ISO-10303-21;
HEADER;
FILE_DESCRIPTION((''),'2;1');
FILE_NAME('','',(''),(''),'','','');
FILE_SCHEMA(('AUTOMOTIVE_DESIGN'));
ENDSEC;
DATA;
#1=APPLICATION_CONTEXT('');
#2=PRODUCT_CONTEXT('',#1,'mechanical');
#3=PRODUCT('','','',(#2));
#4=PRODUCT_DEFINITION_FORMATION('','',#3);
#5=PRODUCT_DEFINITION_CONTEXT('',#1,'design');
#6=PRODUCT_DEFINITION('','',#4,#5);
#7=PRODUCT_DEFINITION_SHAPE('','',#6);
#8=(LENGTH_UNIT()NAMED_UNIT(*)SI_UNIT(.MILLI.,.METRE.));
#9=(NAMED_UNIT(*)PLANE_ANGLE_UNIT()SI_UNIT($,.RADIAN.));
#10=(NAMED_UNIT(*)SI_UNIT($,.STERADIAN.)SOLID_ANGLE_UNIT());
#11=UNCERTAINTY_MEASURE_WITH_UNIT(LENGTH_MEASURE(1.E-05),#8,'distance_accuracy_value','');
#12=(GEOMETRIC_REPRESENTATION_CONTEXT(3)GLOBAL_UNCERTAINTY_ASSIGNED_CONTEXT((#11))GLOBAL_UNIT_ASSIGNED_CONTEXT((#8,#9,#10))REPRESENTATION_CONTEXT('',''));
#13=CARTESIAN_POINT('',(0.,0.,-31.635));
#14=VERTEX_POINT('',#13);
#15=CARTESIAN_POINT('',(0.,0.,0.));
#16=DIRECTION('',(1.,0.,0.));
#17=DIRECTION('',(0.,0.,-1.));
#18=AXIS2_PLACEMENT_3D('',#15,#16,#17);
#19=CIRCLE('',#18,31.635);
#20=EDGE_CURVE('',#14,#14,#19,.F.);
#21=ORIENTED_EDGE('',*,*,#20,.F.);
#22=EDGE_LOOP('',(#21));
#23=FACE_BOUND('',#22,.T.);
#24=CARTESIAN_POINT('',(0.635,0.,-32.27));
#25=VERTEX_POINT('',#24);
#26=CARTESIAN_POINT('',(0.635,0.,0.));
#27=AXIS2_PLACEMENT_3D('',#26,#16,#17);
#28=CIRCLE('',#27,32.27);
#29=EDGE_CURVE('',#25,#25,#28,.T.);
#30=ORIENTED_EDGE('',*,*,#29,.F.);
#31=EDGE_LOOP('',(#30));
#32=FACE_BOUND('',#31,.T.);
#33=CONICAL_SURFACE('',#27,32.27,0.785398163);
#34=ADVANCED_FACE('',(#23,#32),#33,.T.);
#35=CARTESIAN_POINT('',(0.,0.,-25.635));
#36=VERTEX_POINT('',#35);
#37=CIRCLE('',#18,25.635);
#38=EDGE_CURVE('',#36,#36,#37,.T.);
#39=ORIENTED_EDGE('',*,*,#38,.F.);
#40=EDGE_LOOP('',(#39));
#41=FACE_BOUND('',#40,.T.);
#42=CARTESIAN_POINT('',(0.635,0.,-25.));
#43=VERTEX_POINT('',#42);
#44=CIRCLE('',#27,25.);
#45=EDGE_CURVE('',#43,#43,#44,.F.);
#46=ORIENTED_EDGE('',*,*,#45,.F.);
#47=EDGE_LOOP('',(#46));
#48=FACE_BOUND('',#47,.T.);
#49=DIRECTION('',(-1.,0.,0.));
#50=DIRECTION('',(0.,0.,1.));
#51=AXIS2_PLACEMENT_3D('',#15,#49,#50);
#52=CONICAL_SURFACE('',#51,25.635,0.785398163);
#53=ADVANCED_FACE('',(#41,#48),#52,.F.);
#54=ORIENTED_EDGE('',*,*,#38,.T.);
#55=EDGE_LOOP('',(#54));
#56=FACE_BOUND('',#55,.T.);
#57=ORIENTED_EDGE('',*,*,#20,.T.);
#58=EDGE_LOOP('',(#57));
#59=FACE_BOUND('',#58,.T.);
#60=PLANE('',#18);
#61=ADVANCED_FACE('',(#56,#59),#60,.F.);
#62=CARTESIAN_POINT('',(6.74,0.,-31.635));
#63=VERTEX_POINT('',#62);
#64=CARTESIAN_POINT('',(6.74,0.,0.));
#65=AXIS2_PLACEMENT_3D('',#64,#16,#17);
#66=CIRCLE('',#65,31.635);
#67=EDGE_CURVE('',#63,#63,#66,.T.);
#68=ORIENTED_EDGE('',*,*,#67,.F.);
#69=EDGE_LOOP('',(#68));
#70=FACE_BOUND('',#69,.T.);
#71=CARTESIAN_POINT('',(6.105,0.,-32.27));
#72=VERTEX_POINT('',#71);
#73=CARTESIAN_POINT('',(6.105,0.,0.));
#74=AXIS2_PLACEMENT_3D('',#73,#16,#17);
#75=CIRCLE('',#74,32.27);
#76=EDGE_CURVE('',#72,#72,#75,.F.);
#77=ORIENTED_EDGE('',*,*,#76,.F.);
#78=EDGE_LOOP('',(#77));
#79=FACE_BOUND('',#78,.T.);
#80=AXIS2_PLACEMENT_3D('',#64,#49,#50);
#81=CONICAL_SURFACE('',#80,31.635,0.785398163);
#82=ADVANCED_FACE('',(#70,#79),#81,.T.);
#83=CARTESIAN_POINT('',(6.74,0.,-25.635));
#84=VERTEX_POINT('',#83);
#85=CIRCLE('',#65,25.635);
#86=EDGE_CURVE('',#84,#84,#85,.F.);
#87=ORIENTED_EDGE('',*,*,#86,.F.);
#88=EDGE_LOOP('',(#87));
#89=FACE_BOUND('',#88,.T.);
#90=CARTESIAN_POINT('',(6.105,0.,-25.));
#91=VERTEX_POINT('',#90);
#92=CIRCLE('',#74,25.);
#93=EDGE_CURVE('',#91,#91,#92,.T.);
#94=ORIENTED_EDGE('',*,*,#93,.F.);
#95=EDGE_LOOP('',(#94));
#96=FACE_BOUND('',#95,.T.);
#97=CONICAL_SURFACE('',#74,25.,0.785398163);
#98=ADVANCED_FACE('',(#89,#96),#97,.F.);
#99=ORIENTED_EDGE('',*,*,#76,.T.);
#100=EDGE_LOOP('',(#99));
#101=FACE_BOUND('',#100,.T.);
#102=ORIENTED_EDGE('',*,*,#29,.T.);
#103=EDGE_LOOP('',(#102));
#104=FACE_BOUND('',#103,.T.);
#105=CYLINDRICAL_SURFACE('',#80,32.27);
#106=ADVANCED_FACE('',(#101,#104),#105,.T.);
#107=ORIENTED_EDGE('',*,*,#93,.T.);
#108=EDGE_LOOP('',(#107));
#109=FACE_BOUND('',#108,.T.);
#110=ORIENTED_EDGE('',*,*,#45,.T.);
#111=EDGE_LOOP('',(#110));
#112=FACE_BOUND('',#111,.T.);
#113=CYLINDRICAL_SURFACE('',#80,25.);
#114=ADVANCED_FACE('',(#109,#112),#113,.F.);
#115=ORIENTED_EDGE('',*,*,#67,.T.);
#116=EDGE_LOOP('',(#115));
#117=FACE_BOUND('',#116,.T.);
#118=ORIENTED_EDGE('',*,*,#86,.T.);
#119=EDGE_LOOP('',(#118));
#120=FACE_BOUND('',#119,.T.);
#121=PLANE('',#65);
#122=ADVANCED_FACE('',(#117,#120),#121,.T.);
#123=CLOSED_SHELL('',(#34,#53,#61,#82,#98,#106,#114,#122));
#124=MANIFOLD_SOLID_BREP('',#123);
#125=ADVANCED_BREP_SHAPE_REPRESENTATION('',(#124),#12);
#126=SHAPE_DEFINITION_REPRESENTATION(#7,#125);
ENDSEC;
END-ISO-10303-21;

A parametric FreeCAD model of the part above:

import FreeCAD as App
import Part
import Sketcher

V = App.Vector


def edges_at(feature, points):
    """Names of the edges that pass closest to the given points."""
    edges = feature.Shape.Edges
    near = lambda p: min(range(len(edges)), key=lambda i: edges[i].distToShape(Part.Vertex(*p))[0])
    return sorted({f"Edge{near(p) + 1}" for p in points})

doc = App.newDocument("Part")
params = doc.addObject("Spreadsheet::Sheet", "Params")
for row, (alias, value) in enumerate([
    ("sketch1_diameter", "50 mm"),
    ("sketch1_diameter2", "64.54 mm"),
    ("pad1_length", "6.74 mm"),
    ("chamfer_size", "0.635 mm"),
    ("chamfer2_size", "0.635 mm"),
], start=1):
    params.set(f"A{row}", alias)
    params.set(f"B{row}", "=" + value)
    params.setAlias(f"B{row}", alias)

body = doc.addObject("PartDesign::Body", "Body")

sketch1 = body.newObject("Sketcher::SketchObject", "Sketch")
sketch1.AttachmentSupport = (doc.getObject("YZ_Plane"), [""])
sketch1.MapMode = "FlatFace"
sketch1.addGeometry([
    Part.Circle(V(0, 0, 0), V(0, 0, 1), 32),
    Part.Circle(V(0, 0, 0), V(0, 0, 1), 25),
], False)
sketch1.addConstraint([
    Sketcher.Constraint("Coincident", 0, 3, -1, 1),
    Sketcher.Constraint("Coincident", 1, 3, -1, 1),
    Sketcher.Constraint("Diameter", 1, 50.0),
    Sketcher.Constraint("Diameter", 0, 64.54),
])
sketch1.setExpression("Constraints[2]", "Params.sketch1_diameter")
sketch1.setExpression("Constraints[3]", "Params.sketch1_diameter2")
pad1 = body.newObject("PartDesign::Pad", "Pad")
pad1.Profile = sketch1
pad1.setExpression("Length", "Params.pad1_length")
doc.recompute()

chamfer = body.newObject("PartDesign::Chamfer", "Chamfer")
chamfer.Base = (pad1, edges_at(pad1, [(0, 0, 32.27), (6.74, 0, 32.27)]))
chamfer.setExpression("Size", "Params.chamfer_size")
doc.recompute()

chamfer2 = body.newObject("PartDesign::Chamfer", "Chamfer001")
chamfer2.Base = (chamfer, edges_at(chamfer, [(0, 0, 25), (6.74, 0, 25)]))
chamfer2.setExpression("Size", "Params.chamfer2_size")

doc.recompute()
